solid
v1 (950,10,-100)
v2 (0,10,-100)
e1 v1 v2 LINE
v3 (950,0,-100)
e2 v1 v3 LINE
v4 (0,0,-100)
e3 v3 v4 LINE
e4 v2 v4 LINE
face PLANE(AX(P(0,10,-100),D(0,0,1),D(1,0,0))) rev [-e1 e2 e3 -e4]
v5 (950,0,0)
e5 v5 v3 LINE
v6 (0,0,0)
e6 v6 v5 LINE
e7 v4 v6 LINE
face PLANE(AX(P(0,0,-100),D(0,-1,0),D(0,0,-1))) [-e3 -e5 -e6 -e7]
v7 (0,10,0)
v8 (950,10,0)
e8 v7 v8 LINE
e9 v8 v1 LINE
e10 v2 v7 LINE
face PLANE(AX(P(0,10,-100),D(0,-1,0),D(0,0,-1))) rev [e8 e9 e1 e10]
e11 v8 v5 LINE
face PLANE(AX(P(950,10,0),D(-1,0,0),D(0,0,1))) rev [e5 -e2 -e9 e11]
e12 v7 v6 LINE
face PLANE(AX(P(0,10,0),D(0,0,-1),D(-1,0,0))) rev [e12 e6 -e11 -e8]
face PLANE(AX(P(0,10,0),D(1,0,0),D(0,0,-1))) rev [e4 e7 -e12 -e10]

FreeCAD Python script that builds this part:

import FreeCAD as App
import Part
import Sketcher


def add_polygon(sketch, points):
    """Adds a closed chain of lines whose ends are joined by coincident constraints."""
    first, n = sketch.GeometryCount, len(points)
    for a, b in zip(points, points[1:] + points[:1]):
        sketch.addGeometry(Part.LineSegment(App.Vector(*a, 0), App.Vector(*b, 0)), False)
    for i in range(n):
        sketch.addConstraint(Sketcher.Constraint("Coincident", first + i, 2, first + (i + 1) % n, 1))

doc = App.newDocument("Part")
body = doc.addObject("PartDesign::Body", "Body")

sketch1 = body.newObject("Sketcher::SketchObject", "Sketch")
sketch1.AttachmentSupport = (doc.getObject("XZ_Plane"), [""])
sketch1.MapMode = "FlatFace"
add_polygon(sketch1, [(0, -100), (0, 0), (950, 0), (950, -100)])
sketch1.addConstraint([
    Sketcher.Constraint("Vertical", 0),
    Sketcher.Constraint("Horizontal", 1),
    Sketcher.Constraint("Vertical", 2),
    Sketcher.Constraint("Horizontal", 3),
    Sketcher.Constraint("Coincident", 0, 2, -1, 1),
    Sketcher.Constraint("DistanceX", 1, 1, 1, 2, 950.0),
    Sketcher.Constraint("DistanceY", 0, 1, 0, 2, 100.0),
])
pad1 = body.newObject("PartDesign::Pad", "Pad")
pad1.Profile = sketch1
pad1.Length = 10
pad1.Reversed = True

doc.recompute()
